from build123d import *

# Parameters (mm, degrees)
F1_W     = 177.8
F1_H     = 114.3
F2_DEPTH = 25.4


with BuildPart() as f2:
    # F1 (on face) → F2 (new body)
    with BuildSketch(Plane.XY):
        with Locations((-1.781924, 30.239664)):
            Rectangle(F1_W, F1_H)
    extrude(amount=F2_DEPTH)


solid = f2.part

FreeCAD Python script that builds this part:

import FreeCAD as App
import Part
import Sketcher
from FreeCAD import Vector
Q = App.Units.Quantity


def add_polygon(sketch, points):
    """Adds a closed chain of lines whose ends are joined by coincident constraints."""
    first, n = sketch.GeometryCount, len(points)
    for a, b in zip(points, points[1:] + points[:1]):
        sketch.addGeometry(Part.LineSegment(App.Vector(*a, 0), App.Vector(*b, 0)), False)
    for i in range(n):
        sketch.addConstraint(Sketcher.Constraint("Coincident", first + i, 2, first + (i + 1) % n, 1))

doc = App.newDocument("Part")
body = doc.addObject("PartDesign::Body", "Body")

# Sketch on XY plane
sketch1 = body.newObject("Sketcher::SketchObject", "Sketch")
sketch1.AttachmentSupport = (doc.getObject("XY_Plane"), [""])
sketch1.MapMode = "FlatFace"
add_polygon(sketch1, [(-90.681924, 87.389664), (-90.681924, -26.910336), (87.118076, -26.910336), (87.118076, 87.389664)])  # lines 0-3
sketch1.addConstraint(Sketcher.Constraint("Vertical", 0))
sketch1.addConstraint(Sketcher.Constraint("Horizontal", 1))
sketch1.addConstraint(Sketcher.Constraint("Vertical", 2))
sketch1.addConstraint(Sketcher.Constraint("Horizontal", 3))
sketch1.addConstraint(Sketcher.Constraint("DistanceX", 1, 1, 1, 2, Q("7 in")))
sketch1.addConstraint(Sketcher.Constraint("DistanceY", 0, 2, 0, 1, Q("4.5 in")))
sketch1.addConstraint(Sketcher.Constraint("DistanceX", 0, 2, -1, 1, 90.681924))
sketch1.addConstraint(Sketcher.Constraint("DistanceY", 0, 2, -1, 1, 26.910336))
pad1 = body.newObject("PartDesign::Pad", "Pad")
pad1.Profile = sketch1
pad1.Length = Q("1 in")

doc.recompute()
